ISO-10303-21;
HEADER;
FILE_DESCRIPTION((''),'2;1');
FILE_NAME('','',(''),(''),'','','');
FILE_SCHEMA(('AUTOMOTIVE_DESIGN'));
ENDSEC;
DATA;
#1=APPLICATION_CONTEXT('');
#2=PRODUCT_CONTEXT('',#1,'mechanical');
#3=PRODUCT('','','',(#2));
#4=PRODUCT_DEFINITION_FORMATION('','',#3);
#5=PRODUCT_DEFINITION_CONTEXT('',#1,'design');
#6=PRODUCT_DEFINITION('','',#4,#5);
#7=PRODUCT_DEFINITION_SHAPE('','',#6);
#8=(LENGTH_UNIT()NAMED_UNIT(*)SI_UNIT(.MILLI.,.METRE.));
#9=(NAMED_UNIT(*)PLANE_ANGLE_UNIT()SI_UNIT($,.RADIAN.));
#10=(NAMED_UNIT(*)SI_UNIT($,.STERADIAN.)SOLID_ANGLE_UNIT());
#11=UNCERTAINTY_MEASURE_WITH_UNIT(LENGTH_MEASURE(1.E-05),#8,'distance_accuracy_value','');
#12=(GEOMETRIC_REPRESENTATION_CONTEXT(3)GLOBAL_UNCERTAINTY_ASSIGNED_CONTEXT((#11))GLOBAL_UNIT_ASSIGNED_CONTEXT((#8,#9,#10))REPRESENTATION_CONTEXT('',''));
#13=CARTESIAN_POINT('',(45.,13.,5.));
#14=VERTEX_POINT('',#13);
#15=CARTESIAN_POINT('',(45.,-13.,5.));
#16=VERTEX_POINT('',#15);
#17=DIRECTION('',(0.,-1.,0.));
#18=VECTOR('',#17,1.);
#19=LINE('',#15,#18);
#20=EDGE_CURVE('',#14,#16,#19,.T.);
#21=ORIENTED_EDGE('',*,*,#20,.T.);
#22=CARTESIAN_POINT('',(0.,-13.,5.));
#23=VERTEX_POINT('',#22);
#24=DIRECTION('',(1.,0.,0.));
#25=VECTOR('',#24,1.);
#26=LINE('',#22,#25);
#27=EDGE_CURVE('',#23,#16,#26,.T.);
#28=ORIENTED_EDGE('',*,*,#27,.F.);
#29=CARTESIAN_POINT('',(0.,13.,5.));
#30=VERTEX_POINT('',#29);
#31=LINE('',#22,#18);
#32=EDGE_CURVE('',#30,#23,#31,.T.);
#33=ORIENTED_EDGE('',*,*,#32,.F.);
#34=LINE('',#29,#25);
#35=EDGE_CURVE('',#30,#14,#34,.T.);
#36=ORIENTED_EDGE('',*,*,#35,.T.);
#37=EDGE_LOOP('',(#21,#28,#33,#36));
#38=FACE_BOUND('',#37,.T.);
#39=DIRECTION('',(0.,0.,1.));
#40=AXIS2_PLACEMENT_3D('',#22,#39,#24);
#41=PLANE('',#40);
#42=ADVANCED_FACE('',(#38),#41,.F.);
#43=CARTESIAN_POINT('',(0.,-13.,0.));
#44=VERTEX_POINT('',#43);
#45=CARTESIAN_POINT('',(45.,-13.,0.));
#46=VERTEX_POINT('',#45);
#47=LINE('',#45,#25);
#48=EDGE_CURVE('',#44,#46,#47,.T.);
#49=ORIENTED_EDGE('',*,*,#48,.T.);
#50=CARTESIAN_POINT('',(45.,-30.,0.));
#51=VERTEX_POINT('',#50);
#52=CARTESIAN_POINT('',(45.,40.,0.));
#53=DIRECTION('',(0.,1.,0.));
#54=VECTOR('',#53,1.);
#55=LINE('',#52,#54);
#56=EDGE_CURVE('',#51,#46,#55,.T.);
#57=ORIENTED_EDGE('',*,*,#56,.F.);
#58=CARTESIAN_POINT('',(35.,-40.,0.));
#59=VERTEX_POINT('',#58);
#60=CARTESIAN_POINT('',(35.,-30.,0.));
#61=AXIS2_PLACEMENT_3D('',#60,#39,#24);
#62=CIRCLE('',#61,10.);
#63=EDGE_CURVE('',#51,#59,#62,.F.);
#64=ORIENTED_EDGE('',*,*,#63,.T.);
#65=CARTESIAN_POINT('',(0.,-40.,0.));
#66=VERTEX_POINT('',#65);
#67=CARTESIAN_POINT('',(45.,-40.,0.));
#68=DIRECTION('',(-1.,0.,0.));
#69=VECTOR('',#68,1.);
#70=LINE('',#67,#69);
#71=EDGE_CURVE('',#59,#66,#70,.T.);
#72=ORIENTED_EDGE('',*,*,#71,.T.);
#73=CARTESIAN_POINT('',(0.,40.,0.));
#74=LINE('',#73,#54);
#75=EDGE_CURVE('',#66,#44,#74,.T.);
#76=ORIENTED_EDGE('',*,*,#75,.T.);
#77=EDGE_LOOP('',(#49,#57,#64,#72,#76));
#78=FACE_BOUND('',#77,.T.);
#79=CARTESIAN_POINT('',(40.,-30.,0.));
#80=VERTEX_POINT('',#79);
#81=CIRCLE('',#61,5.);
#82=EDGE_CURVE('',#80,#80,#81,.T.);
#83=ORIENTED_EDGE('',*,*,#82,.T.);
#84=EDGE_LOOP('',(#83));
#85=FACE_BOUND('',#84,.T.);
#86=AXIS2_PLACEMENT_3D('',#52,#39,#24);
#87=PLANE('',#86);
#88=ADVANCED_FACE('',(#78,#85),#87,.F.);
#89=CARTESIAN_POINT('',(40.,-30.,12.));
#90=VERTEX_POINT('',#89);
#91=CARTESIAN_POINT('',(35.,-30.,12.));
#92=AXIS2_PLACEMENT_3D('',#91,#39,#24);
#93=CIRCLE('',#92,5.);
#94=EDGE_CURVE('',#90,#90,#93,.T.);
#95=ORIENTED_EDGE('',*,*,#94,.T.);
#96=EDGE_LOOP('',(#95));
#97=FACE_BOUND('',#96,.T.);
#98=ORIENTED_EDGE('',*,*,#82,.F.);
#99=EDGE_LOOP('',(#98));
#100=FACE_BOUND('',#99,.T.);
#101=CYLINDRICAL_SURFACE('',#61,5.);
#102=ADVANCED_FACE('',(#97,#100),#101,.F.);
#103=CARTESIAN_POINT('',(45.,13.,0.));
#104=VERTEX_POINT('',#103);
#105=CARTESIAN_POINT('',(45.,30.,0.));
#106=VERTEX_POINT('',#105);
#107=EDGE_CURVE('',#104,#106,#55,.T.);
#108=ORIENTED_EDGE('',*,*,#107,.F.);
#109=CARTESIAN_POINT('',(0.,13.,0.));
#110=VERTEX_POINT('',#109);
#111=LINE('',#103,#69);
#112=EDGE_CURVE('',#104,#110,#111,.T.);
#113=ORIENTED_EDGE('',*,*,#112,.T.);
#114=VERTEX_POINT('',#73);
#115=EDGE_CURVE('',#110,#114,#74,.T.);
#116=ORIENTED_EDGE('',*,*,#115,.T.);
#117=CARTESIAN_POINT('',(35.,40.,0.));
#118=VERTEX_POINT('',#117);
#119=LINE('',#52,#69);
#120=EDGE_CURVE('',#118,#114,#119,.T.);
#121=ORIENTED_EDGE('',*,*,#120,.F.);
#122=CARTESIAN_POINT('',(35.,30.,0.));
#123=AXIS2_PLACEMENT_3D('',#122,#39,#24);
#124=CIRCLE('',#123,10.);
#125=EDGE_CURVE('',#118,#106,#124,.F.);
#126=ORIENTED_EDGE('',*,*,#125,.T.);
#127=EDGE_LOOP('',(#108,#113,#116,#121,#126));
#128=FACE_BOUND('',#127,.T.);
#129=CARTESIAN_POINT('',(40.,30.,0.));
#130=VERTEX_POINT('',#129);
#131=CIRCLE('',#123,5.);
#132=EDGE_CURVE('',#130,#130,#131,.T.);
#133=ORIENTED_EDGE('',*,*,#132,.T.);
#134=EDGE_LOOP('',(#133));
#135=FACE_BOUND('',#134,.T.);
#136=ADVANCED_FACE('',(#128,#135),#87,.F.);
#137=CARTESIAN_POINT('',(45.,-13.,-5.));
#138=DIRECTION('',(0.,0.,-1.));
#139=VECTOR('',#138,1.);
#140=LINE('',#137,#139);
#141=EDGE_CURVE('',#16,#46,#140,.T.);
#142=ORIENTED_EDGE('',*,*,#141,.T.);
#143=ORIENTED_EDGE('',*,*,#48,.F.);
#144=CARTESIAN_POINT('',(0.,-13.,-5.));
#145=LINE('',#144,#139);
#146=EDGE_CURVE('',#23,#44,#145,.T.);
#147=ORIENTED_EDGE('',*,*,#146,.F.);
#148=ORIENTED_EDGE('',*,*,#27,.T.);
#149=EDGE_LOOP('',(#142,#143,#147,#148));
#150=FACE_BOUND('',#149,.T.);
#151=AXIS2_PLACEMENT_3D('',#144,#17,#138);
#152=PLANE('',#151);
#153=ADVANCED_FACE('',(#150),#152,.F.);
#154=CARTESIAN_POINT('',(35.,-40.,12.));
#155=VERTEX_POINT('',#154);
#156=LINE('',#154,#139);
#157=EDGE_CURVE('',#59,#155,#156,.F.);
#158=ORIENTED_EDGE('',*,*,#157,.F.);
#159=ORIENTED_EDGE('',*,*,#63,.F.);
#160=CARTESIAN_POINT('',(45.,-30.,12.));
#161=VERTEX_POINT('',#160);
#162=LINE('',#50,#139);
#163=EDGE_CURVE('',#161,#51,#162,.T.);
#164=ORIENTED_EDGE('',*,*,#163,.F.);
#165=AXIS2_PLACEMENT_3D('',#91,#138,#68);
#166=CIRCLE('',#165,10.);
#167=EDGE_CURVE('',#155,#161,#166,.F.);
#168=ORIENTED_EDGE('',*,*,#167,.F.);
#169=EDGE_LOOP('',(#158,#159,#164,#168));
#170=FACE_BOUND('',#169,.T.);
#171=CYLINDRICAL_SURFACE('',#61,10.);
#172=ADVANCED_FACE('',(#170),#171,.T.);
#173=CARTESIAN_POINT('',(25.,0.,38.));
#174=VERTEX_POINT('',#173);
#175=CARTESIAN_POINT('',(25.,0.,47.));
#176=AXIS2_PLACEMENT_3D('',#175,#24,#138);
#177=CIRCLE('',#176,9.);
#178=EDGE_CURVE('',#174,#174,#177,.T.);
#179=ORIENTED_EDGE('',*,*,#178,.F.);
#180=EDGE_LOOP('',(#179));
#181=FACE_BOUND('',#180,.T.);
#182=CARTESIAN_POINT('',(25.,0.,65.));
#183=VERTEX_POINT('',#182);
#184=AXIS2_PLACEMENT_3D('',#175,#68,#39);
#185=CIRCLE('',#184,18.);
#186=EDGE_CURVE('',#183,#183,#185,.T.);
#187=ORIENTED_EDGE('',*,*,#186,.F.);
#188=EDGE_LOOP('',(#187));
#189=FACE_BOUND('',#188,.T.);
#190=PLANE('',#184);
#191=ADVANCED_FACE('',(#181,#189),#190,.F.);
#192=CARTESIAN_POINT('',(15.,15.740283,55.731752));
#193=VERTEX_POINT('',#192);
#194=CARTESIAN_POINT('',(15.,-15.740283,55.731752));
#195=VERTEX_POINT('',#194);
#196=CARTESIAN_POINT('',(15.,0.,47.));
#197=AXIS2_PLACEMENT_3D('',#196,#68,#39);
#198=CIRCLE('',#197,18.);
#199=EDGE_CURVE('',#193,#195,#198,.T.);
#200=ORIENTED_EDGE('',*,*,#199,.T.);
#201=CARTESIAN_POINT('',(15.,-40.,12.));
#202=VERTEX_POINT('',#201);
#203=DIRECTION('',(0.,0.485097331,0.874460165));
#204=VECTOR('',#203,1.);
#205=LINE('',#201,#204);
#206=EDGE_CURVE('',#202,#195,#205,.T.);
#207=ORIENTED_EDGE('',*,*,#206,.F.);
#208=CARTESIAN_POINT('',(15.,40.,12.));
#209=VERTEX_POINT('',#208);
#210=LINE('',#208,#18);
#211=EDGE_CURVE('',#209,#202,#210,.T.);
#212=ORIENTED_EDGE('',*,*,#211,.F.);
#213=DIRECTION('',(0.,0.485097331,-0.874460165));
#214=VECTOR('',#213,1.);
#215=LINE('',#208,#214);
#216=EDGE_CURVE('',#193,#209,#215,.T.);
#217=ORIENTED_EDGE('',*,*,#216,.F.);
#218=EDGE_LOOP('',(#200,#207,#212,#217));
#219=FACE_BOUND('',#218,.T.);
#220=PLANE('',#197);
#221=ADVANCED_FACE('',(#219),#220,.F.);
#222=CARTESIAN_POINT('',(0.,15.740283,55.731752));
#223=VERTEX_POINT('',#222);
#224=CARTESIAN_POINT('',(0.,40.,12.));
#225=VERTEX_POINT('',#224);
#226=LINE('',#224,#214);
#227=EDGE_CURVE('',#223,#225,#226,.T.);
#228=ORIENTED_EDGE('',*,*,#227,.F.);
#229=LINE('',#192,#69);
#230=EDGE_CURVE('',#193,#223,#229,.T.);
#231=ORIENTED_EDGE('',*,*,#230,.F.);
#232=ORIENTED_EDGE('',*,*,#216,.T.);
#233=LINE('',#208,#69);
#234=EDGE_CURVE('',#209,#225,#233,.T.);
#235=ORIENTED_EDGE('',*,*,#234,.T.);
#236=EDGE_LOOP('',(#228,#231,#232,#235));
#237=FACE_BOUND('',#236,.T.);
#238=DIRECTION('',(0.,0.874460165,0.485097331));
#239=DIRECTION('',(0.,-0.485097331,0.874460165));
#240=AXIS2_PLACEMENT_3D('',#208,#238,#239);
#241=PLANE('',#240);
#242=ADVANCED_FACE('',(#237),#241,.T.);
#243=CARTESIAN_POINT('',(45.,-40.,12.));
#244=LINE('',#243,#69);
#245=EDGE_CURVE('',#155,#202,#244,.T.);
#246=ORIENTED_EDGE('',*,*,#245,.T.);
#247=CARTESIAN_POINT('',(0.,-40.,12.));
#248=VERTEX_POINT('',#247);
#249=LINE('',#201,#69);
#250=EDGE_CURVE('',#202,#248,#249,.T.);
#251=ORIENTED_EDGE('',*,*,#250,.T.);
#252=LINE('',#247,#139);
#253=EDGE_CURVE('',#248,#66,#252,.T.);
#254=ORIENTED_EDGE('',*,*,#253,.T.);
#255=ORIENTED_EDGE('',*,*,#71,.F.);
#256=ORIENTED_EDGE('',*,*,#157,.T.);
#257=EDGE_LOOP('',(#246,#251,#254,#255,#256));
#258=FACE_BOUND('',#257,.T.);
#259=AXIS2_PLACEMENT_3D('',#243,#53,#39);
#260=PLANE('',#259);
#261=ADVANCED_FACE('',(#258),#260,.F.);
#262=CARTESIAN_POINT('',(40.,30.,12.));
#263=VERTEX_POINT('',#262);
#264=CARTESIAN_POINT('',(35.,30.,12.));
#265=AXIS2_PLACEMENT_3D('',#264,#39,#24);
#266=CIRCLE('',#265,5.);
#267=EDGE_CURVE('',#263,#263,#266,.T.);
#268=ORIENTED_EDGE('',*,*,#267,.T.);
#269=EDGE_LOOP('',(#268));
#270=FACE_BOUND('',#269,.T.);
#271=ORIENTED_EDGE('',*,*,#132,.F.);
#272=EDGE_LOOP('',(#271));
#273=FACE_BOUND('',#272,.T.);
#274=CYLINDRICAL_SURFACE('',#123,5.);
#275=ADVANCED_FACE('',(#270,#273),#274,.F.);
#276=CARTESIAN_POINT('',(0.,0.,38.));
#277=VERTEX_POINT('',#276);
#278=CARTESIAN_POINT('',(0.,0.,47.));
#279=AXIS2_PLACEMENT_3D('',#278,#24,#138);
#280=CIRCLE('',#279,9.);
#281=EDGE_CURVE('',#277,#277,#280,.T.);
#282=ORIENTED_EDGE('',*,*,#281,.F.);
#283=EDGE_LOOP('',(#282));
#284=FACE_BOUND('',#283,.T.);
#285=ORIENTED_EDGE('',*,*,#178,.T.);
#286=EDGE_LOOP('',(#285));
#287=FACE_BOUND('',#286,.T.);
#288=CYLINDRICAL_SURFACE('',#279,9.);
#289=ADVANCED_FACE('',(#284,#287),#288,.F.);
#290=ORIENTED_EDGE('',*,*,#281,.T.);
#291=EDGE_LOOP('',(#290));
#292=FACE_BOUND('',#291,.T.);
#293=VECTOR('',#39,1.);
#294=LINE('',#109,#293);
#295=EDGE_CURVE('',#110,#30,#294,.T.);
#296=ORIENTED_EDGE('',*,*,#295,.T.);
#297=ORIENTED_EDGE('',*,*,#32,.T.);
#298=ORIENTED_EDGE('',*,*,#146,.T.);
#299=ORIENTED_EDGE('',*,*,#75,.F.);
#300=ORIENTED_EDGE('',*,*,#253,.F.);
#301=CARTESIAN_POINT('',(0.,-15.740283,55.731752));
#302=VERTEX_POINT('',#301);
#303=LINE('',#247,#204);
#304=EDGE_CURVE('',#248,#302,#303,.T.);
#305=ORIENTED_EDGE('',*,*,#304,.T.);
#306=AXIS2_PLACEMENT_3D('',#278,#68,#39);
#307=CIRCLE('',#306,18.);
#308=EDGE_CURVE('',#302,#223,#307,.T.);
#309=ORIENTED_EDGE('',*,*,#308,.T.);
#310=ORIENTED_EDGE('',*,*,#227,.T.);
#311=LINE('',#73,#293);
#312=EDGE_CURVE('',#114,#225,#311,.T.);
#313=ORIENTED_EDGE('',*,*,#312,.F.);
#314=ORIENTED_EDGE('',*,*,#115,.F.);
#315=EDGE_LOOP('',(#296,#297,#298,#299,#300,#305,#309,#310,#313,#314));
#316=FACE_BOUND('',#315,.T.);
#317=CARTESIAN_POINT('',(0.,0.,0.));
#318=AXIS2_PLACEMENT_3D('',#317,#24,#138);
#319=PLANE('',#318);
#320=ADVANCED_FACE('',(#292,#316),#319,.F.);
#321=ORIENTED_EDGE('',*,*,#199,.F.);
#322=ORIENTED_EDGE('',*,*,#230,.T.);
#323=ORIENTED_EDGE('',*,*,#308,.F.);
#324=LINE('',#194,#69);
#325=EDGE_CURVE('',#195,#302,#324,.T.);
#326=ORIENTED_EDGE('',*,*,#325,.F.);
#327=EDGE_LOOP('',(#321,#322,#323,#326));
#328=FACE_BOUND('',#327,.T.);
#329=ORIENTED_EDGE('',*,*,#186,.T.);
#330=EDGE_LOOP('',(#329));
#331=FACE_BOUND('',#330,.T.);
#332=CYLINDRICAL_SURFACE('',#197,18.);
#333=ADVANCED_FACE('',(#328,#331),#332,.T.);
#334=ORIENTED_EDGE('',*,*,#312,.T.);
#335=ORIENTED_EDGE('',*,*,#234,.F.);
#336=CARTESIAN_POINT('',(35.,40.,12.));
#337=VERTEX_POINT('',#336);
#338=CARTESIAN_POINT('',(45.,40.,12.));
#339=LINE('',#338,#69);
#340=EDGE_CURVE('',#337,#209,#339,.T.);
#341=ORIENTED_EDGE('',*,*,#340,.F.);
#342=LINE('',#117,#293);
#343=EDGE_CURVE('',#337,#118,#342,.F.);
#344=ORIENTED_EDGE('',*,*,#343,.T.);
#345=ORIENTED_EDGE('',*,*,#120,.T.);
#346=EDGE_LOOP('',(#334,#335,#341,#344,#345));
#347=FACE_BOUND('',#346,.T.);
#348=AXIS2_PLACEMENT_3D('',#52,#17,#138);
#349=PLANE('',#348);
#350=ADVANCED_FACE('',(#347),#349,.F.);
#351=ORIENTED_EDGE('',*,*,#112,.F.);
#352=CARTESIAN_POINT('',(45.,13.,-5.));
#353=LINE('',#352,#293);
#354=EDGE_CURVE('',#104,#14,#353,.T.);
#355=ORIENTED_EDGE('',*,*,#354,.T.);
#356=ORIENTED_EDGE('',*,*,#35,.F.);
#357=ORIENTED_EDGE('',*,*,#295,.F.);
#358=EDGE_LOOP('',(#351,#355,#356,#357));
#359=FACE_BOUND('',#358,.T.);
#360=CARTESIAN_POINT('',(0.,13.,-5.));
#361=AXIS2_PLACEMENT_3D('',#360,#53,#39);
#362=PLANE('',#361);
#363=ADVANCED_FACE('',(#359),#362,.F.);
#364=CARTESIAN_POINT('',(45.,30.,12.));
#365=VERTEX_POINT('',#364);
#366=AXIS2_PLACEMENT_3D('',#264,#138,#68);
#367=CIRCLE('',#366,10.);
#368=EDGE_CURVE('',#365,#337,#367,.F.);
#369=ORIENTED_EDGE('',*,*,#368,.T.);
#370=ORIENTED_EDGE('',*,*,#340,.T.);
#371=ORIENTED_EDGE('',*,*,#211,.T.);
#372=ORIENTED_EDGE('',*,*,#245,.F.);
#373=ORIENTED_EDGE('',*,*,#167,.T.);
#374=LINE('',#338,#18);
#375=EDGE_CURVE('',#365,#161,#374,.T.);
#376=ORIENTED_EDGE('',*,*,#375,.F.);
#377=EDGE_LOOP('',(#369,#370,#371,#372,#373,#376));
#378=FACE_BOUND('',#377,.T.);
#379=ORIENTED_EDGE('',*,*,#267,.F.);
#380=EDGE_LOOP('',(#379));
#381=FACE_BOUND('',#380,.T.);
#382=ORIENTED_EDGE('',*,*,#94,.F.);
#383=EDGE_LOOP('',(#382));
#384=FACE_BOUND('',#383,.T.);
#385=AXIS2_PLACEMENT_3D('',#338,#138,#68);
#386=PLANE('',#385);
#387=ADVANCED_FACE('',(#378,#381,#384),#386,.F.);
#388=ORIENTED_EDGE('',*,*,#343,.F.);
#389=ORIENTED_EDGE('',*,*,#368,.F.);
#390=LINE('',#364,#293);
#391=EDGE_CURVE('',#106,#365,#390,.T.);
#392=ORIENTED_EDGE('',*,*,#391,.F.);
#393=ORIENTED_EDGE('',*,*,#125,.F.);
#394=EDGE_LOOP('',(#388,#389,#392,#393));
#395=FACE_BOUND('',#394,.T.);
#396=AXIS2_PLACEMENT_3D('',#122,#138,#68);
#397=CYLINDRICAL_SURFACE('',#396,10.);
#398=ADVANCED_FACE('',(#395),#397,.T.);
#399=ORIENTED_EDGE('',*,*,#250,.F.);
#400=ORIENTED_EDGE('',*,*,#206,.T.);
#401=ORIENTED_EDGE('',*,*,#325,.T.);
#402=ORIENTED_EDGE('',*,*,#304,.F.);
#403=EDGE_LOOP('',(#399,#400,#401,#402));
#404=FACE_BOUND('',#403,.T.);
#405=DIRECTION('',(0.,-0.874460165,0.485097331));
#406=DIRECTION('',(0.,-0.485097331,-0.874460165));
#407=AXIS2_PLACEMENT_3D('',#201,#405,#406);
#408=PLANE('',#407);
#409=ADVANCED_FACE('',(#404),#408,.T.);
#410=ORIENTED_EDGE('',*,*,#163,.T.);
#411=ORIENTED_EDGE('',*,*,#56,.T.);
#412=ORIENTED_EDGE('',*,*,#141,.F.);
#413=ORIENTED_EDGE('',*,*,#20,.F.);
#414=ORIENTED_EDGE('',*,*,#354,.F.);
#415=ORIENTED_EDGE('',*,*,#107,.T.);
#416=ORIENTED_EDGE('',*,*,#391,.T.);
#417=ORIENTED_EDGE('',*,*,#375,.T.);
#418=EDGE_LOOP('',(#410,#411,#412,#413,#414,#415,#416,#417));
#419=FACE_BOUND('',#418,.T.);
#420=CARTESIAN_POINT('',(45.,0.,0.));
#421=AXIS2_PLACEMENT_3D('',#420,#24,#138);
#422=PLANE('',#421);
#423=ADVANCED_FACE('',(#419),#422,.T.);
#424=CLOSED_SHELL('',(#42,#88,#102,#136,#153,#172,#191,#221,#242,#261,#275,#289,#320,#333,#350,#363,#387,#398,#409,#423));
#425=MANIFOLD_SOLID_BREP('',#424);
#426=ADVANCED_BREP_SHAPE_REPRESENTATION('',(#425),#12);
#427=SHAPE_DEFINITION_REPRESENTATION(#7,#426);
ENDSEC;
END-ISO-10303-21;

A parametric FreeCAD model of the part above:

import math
import FreeCAD as App
import Part
import Sketcher
from FreeCAD import Vector


def edges_at(feature, points):
    """Names of the edges that pass closest to the given points."""
    edges = feature.Shape.Edges
    near = lambda p: min(range(len(edges)), key=lambda i: edges[i].distToShape(Part.Vertex(*p))[0])
    return sorted({f"Edge{near(p) + 1}" for p in points})

doc = App.newDocument("Part")
body = doc.addObject("PartDesign::Body", "Body")

# Sketch on YZ plane
sketch1 = doc.addObject("Sketcher::SketchObject", "Sketch")
body.addObject(sketch1)
sketch1.AttachmentSupport = (doc.YZ_Plane, [""])
sketch1.MapMode = "FlatFace"
sketch1.addGeometry([
    Part.LineSegment(Vector(40, 12, 0), Vector(-40, 12, 0)),
    Part.LineSegment(Vector(-40, 12, 0), Vector(-40, 0, 0)),
    Part.LineSegment(Vector(-40, 0, 0), Vector(40, 0, 0)),
    Part.LineSegment(Vector(40, 0, 0), Vector(40, 12, 0)),
], False)
sketch1.addConstraint([
    Sketcher.Constraint("Coincident", 0, 2, 1, 1),
    Sketcher.Constraint("Coincident", 1, 2, 2, 1),
    Sketcher.Constraint("Coincident", 2, 2, 3, 1),
    Sketcher.Constraint("Coincident", 3, 2, 0, 1),
    Sketcher.Constraint("Horizontal", 0),
    Sketcher.Constraint("Vertical", 1),
    Sketcher.Constraint("Horizontal", 2),
    Sketcher.Constraint("Vertical", 3),
    Sketcher.Constraint("Symmetric", 1, 2, 2, 2, -1, 1),
    Sketcher.Constraint("DistanceX", 0, 2, 0, 1, 80.0),
    Sketcher.Constraint("DistanceY", 1, 2, 1, 1, 12.0),
])
pad1 = doc.addObject("PartDesign::Pad", "Pad")
body.addObject(pad1)
pad1.Profile = sketch1
pad1.Length = 45
doc.recompute()

fillet = doc.addObject("PartDesign::Fillet", "Fillet")
body.addObject(fillet)
fillet.Base = (pad1, edges_at(pad1, [(45, -40, 6), (45, 40, 6)]))
fillet.Radius = 10

# Sketch on XY plane
sketch2 = doc.addObject("Sketcher::SketchObject", "Sketch001")
body.addObject(sketch2)
sketch2.AttachmentSupport = (doc.XY_Plane, [""])
sketch2.MapMode = "FlatFace"
sketch2.AttachmentOffset = App.Placement(Vector(0, 0, 12), App.Rotation())
sketch2.addGeometry([
    Part.Circle(Vector(35, 30, 0), Vector(0, 0, 1), 5),
    Part.Circle(Vector(35, -30, 0), Vector(0, 0, 1), 5),
], False)
sketch2.addConstraint([
    Sketcher.Constraint("Equal", 0, 1),
    Sketcher.Constraint("Symmetric", 0, 3, 1, 3, -1),
    Sketcher.Constraint("Diameter", 0, 10.0),
    Sketcher.Constraint("DistanceX", -1, 1, 0, 3, 35.0),
    Sketcher.Constraint("DistanceY", -1, 1, 0, 3, 30.0),
])
pocket1 = doc.addObject("PartDesign::Pocket", "Pocket")
body.addObject(pocket1)
pocket1.Profile = sketch2
pocket1.Type = "ThroughAll"

# Sketch on YZ plane
sketch3 = doc.addObject("Sketcher::SketchObject", "Sketch002")
body.addObject(sketch3)
sketch3.AttachmentSupport = (doc.YZ_Plane, [""])
sketch3.MapMode = "FlatFace"
sketch3.AttachmentOffset = App.Placement(Vector(0, 0, 45), App.Rotation())
sketch3.addGeometry([
    Part.LineSegment(Vector(13, 5, 0), Vector(-13, 5, 0)),
    Part.LineSegment(Vector(-13, 5, 0), Vector(-13, -5, 0)),
    Part.LineSegment(Vector(-13, -5, 0), Vector(13, -5, 0)),
    Part.LineSegment(Vector(13, -5, 0), Vector(13, 5, 0)),
], False)
sketch3.addConstraint([
    Sketcher.Constraint("Coincident", 0, 2, 1, 1),
    Sketcher.Constraint("Coincident", 1, 2, 2, 1),
    Sketcher.Constraint("Coincident", 2, 2, 3, 1),
    Sketcher.Constraint("Coincident", 3, 2, 0, 1),
    Sketcher.Constraint("Horizontal", 0),
    Sketcher.Constraint("Vertical", 1),
    Sketcher.Constraint("Horizontal", 2),
    Sketcher.Constraint("Vertical", 3),
    Sketcher.Constraint("Symmetric", 0, 2, 2, 2, -1, 1),
    Sketcher.Constraint("DistanceX", 0, 2, 0, 1, 26.0),
    Sketcher.Constraint("DistanceY", 1, 2, 1, 1, 10.0),
])
pocket2 = doc.addObject("PartDesign::Pocket", "Pocket001")
body.addObject(pocket2)
pocket2.Profile = sketch3
pocket2.Type = "ThroughAll"
body2 = doc.addObject("PartDesign::Body", "Body001")

# Sketch on YZ plane
sketch4 = doc.addObject("Sketcher::SketchObject", "Sketch003")
body2.addObject(sketch4)
sketch4.AttachmentSupport = (doc.getObject("YZ_Plane001"), [""])
sketch4.MapMode = "FlatFace"
sketch4.addGeometry(Part.Circle(Vector(0, 47, 0), Vector(0, 0, 1), 18), False)
sketch4.addConstraint([
    Sketcher.Constraint("PointOnObject", 0, 3, -2),
    Sketcher.Constraint("Diameter", 0, 36.0),
    Sketcher.Constraint("DistanceY", -1, 1, 0, 3, 47.0),
])
pad2 = doc.addObject("PartDesign::Pad", "Pad001")
body2.addObject(pad2)
pad2.Profile = sketch4
pad2.Length = 25
body.AllowCompound = True
doc.recompute()

boolean = doc.addObject("PartDesign::Boolean", "Boolean")
body.addObject(boolean)
boolean.Type = "Fuse"
boolean.addObjects([body2])

# Sketch on YZ plane
sketch5 = doc.addObject("Sketcher::SketchObject", "Sketch004")
body.addObject(sketch5)
sketch5.AttachmentSupport = (doc.YZ_Plane, [""])
sketch5.MapMode = "FlatFace"
sketch5.addGeometry([
    Part.LineSegment(Vector(15.740283, 55.731752, 0), Vector(40, 12, 0)),
    Part.LineSegment(Vector(40, 12, 0), Vector(-40, 12, 0)),
    Part.LineSegment(Vector(-40, 12, 0), Vector(-15.740283, 55.731752, 0)),
    Part.ArcOfCircle(Part.Circle(Vector(0, 47, 0), Vector(0, 0, 1), 18), math.radians(29.018849), math.radians(150.981151)),
], False)
sketch5.addConstraint([
    Sketcher.Constraint("Coincident", 0, 2, 1, 1),
    Sketcher.Constraint("Coincident", 1, 2, 2, 1),
    Sketcher.Constraint("Tangent", 2, 2, 3, 2),
    Sketcher.Constraint("Tangent", 3, 1, 0, 1),
    Sketcher.Constraint("Horizontal", 1),
    Sketcher.Constraint("Symmetric", 2, 2, 3, 1, -2),
    Sketcher.Constraint("Radius", 3, 18.0),
    Sketcher.Constraint("DistanceX", 1, 2, 1, 1, 80.0),
    Sketcher.Constraint("DistanceY", -1, 1, 3, 3, 47.0),
    Sketcher.Constraint("DistanceY", -1, 1, 0, 2, 12.0),
])
pad3 = doc.addObject("PartDesign::Pad", "Pad002")
body.addObject(pad3)
pad3.Profile = sketch5
pad3.Length = 15

# Sketch on YZ plane
sketch6 = doc.addObject("Sketcher::SketchObject", "Sketch005")
body.addObject(sketch6)
sketch6.AttachmentSupport = (doc.YZ_Plane, [""])
sketch6.MapMode = "FlatFace"
sketch6.AttachmentOffset = App.Placement(Vector(0, 0, 25), App.Rotation())
sketch6.addGeometry(Part.Circle(Vector(0, 47, 0), Vector(0, 0, 1), 9), False)
sketch6.addConstraint([
    Sketcher.Constraint("PointOnObject", 0, 3, -2),
    Sketcher.Constraint("Diameter", 0, 18.0),
    Sketcher.Constraint("DistanceY", -1, 1, 0, 3, 47.0),
])
pocket3 = doc.addObject("PartDesign::Pocket", "Pocket002")
body.addObject(pocket3)
pocket3.Profile = sketch6
pocket3.Type = "ThroughAll"

doc.recompute()
